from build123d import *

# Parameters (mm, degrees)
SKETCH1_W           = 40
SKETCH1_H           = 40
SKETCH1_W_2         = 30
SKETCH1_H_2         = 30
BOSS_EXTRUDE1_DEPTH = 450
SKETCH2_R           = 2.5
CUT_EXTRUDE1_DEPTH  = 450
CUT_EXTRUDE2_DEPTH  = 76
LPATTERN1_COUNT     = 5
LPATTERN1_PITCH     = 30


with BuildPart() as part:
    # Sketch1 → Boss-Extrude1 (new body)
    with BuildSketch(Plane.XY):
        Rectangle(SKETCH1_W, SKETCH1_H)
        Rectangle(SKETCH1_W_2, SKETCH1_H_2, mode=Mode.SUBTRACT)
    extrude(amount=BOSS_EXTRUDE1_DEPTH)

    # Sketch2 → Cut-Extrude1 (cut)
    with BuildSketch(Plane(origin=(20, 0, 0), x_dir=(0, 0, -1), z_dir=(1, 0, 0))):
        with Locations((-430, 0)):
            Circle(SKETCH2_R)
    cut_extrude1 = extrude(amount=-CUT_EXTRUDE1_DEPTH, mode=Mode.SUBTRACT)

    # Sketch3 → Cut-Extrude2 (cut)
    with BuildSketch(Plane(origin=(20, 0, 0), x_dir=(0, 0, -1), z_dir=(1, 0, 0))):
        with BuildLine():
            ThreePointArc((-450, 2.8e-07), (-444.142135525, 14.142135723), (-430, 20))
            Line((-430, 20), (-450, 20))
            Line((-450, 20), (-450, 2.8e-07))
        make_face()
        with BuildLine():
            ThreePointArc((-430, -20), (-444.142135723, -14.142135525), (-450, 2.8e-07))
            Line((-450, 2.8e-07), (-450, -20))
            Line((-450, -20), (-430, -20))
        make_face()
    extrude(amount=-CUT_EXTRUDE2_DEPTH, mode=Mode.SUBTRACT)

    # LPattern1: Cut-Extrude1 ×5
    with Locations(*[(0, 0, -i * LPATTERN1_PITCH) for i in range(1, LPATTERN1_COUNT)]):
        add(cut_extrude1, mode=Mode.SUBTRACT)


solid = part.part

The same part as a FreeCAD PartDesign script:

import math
import FreeCAD as App
import Part
import Sketcher

V = App.Vector
Q = App.Units.Quantity

doc = App.newDocument("Part")
body = doc.addObject("PartDesign::Body", "Body")

# Sketch on XY plane
sketch1 = doc.addObject("Sketcher::SketchObject", "Sketch")
body.addObject(sketch1)
sketch1.AttachmentSupport = (doc.XY_Plane, [""])
sketch1.MapMode = "FlatFace"
sketch1.addGeometry([
    Part.LineSegment(V(-20, 20, 0), V(-20, -20, 0)),  # 0
    Part.LineSegment(V(-20, -20, 0), V(20, -20, 0)),  # 1
    Part.LineSegment(V(20, -20, 0), V(20, 20, 0)),  # 2
    Part.LineSegment(V(20, 20, 0), V(-20, 20, 0)),  # 3
    Part.LineSegment(V(15, -15, 0), V(-15, -15, 0)),  # 4
    Part.LineSegment(V(-15, -15, 0), V(-15, 15, 0)),  # 5
    Part.LineSegment(V(-15, 15, 0), V(15, 15, 0)),  # 6
    Part.LineSegment(V(15, 15, 0), V(15, -15, 0)),  # 7
], False)
sketch1.addConstraint([
    Sketcher.Constraint("Coincident", 0, 2, 1, 1),
    Sketcher.Constraint("Coincident", 1, 2, 2, 1),
    Sketcher.Constraint("Coincident", 2, 2, 3, 1),
    Sketcher.Constraint("Coincident", 3, 2, 0, 1),
    Sketcher.Constraint("Coincident", 4, 2, 5, 1),
    Sketcher.Constraint("Coincident", 5, 2, 6, 1),
    Sketcher.Constraint("Coincident", 6, 2, 7, 1),
    Sketcher.Constraint("Coincident", 7, 2, 4, 1),
    Sketcher.Constraint("Vertical", 0),
    Sketcher.Constraint("Horizontal", 1),
    Sketcher.Constraint("Vertical", 2),
    Sketcher.Constraint("Horizontal", 3),
    Sketcher.Constraint("Horizontal", 4),
    Sketcher.Constraint("Vertical", 5),
    Sketcher.Constraint("Horizontal", 6),
    Sketcher.Constraint("Vertical", 7),
    Sketcher.Constraint("Symmetric", 0, 2, 2, 2, -1, 1),
    Sketcher.Constraint("Symmetric", 4, 2, 6, 2, -1, 1),
    Sketcher.Constraint("Equal", 3, 0),
    Sketcher.Constraint("Equal", 6, 5),
    Sketcher.Constraint("DistanceX", 1, 1, 1, 2, Q("40 mm")),
    Sketcher.Constraint("DistanceX", 4, 2, 4, 1, Q("30 mm")),
])
pad1 = doc.addObject("PartDesign::Pad", "Pad")
body.addObject(pad1)
pad1.Profile = sketch1
pad1.Length = 450

# Sketch on YZ plane
sketch2 = doc.addObject("Sketcher::SketchObject", "Sketch001")
body.addObject(sketch2)
sketch2.AttachmentSupport = (doc.YZ_Plane, [""])
sketch2.MapMode = "FlatFace"
sketch2.AttachmentOffset = App.Placement(V(0, 0, 20), App.Rotation())
sketch2.addGeometry(Part.Circle(V(0, 430, 0), V(0, 0, 1), 2.5), False)
sketch2.addConstraint([
    Sketcher.Constraint("PointOnObject", 0, 3, -2),
    Sketcher.Constraint("Diameter", 0, Q("5 mm")),
    Sketcher.Constraint("DistanceY", -1, 1, 0, 3, Q("430 mm")),
])
pocket1 = doc.addObject("PartDesign::Pocket", "Pocket")
body.addObject(pocket1)
pocket1.Profile = sketch2
pocket1.Length = 450

# Sketch on YZ plane
sketch3 = doc.addObject("Sketcher::SketchObject", "Sketch002")
body.addObject(sketch3)
sketch3.AttachmentSupport = (doc.YZ_Plane, [""])
sketch3.MapMode = "FlatFace"
sketch3.AttachmentOffset = App.Placement(V(0, 0, 20), App.Rotation())
sketch3.addGeometry([
    Part.ArcOfCircle(Part.Circle(V(0, 430, 0), V(0, 0, 1), 20), math.radians(0), math.radians(90)),  # 0
    Part.LineSegment(V(20, 430, 0), V(20, 450, 0)),  # 1
    Part.LineSegment(V(20, 450, 0), V(0, 450, 0)),  # 2
    Part.ArcOfCircle(Part.Circle(V(0, 430, 0), V(0, 0, 1), 20), math.radians(90), math.radians(180)),  # 3
    Part.LineSegment(V(0, 450, 0), V(-20, 450, 0)),  # 4
    Part.LineSegment(V(-20, 450, 0), V(-20, 430, 0)),  # 5
], False)
sketch3.addConstraint([
    Sketcher.Constraint("Tangent", 0, 1, 1, 1),
    Sketcher.Constraint("Coincident", 1, 2, 2, 1),
    Sketcher.Constraint("Tangent", 2, 2, 0, 2),
    Sketcher.Constraint("Tangent", 3, 1, 4, 1),
    Sketcher.Constraint("Coincident", 4, 2, 5, 1),
    Sketcher.Constraint("Tangent", 5, 2, 3, 2),
    Sketcher.Constraint("Vertical", 1),
    Sketcher.Constraint("Horizontal", 2),
    Sketcher.Constraint("Horizontal", 4),
    Sketcher.Constraint("Vertical", 5),
    Sketcher.Constraint("Coincident", 3, 3, 0, 3),
    Sketcher.Constraint("Equal", 0, 3),
    Sketcher.Constraint("PointOnObject", 0, 3, -2),
    Sketcher.Constraint("Radius", 0, Q("20 mm")),
    Sketcher.Constraint("DistanceY", -1, 1, 0, 3, Q("430 mm")),
])
pocket2 = doc.addObject("PartDesign::Pocket", "Pocket001")
body.addObject(pocket2)
pocket2.Profile = sketch3
pocket2.Length = 76
doc.recompute()

linearpattern = doc.addObject("PartDesign::LinearPattern", "LinearPattern")
body.addObject(linearpattern)
linearpattern.Originals = [pocket1]
linearpattern.Direction = (doc.Z_Axis, [""])
linearpattern.Mode = "offset"
linearpattern.Offset = 30
linearpattern.Occurrences = 5
linearpattern.Reversed = True
body.Tip = linearpattern

doc.recompute()
